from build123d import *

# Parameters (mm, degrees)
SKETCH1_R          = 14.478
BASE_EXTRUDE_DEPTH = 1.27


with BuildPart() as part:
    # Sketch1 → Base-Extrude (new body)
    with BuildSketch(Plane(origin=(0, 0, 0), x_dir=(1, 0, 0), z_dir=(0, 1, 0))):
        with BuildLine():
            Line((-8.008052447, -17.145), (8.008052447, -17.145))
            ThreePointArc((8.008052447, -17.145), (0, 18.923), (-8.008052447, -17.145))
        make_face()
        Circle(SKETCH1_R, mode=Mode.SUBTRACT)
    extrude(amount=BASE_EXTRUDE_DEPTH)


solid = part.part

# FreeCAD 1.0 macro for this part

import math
import FreeCAD as App
import Part
import Sketcher
from FreeCAD import Vector
Q = App.Units.Quantity

doc = App.newDocument("Part")
body = doc.addObject("PartDesign::Body", "Body")

sketch1 = body.newObject("Sketcher::SketchObject", "Sketch")
sketch1.AttachmentSupport = (doc.getObject("XZ_Plane"), [""])
sketch1.MapMode = "FlatFace"
sketch1.addGeometry([
    Part.LineSegment(Vector(-8, 17, 0), Vector(8, 17, 0)),
    Part.ArcOfCircle(Part.Circle(Vector(0, 0, 0), Vector(0, 0, 1), 19), math.radians(115), math.radians(425)),
    Part.Circle(Vector(0, 0, 0), Vector(0, 0, 1), 14),
], False)
sketch1.addConstraint([
    Sketcher.Constraint("Coincident", 0, 1, 1, 1),
    Sketcher.Constraint("Coincident", 1, 2, 0, 2),
    Sketcher.Constraint("Horizontal", 0),
    Sketcher.Constraint("Coincident", 1, 3, -1, 1),
    Sketcher.Constraint("Coincident", 2, 3, -1, 1),
    Sketcher.Constraint("Diameter", 2, Q("1.14 in")),
    Sketcher.Constraint("Radius", 1, Q("0.745 in")),
    Sketcher.Constraint("DistanceY", -1, 1, 0, 1, Q("0.675 in")),
])
pad1 = body.newObject("PartDesign::Pad", "Pad")
pad1.Profile = sketch1
pad1.Length = Q("0.05 in")
pad1.Reversed = True

doc.recompute()
